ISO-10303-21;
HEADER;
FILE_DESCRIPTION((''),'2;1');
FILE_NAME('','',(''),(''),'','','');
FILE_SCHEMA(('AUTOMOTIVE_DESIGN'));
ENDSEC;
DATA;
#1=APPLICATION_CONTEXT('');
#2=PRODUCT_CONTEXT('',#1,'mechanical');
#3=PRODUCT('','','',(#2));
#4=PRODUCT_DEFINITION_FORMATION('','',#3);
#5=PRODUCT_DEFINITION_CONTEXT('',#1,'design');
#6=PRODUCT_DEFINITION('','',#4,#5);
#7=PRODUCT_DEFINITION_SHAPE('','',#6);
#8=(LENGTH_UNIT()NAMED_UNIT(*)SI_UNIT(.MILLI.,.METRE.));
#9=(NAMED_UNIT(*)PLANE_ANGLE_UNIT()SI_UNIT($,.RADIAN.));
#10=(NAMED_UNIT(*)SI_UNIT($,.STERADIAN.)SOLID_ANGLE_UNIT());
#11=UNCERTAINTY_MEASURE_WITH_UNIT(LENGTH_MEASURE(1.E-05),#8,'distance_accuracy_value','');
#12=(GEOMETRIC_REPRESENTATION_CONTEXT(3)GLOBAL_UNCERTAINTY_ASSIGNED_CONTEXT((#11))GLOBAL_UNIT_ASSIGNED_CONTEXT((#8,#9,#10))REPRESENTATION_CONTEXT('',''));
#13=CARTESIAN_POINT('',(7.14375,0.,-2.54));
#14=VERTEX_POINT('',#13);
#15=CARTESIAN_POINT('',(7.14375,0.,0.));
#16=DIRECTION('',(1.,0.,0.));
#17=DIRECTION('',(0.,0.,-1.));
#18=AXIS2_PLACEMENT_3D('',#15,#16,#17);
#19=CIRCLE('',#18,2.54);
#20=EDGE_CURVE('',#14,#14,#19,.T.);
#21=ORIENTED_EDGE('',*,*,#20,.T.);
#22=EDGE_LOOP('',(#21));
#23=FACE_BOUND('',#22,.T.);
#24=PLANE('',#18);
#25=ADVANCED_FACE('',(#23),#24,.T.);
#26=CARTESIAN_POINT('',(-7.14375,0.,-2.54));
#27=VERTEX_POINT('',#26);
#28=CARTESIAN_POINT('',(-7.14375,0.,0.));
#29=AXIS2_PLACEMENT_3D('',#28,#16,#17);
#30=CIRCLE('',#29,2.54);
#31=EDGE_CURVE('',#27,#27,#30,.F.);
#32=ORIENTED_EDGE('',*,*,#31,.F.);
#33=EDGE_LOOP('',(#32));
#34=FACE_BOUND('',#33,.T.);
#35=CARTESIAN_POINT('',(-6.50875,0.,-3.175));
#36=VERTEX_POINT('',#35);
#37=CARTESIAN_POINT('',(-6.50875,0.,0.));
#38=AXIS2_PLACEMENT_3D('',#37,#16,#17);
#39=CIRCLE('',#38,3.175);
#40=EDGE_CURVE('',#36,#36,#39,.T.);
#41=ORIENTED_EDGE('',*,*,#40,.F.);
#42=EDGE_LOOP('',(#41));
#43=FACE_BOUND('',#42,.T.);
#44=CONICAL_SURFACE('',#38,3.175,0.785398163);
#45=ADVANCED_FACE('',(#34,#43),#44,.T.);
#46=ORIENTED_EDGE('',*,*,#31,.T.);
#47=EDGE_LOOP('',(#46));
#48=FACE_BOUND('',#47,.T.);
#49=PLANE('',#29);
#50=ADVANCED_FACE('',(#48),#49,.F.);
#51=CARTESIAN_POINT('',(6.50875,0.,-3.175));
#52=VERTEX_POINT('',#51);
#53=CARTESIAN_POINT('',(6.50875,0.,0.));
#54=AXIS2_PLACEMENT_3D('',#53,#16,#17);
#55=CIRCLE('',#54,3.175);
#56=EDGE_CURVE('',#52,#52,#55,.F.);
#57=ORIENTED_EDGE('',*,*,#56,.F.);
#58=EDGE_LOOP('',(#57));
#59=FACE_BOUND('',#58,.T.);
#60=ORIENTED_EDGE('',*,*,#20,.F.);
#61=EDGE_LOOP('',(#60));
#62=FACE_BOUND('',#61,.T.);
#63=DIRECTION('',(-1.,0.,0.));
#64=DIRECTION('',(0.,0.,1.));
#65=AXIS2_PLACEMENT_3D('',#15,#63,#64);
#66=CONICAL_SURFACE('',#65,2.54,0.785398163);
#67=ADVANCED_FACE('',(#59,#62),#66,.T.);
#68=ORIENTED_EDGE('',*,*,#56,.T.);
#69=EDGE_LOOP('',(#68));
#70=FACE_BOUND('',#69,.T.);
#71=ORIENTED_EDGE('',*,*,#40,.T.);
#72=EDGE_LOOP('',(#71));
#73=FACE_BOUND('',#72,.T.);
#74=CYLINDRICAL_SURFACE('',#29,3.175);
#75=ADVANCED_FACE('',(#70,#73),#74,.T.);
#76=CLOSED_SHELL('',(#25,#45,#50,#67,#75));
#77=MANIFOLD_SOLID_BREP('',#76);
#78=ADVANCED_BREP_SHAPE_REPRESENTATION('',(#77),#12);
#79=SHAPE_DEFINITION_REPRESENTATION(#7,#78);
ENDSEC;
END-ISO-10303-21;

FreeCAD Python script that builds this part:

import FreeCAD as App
import Part
import Sketcher
Q = App.Units.Quantity


def edges_at(feature, points):
    """Names of the edges that pass closest to the given points."""
    edges = feature.Shape.Edges
    near = lambda p: min(range(len(edges)), key=lambda i: edges[i].distToShape(Part.Vertex(*p))[0])
    return sorted({f"Edge{near(p) + 1}" for p in points})

doc = App.newDocument("Part")
body = doc.addObject("PartDesign::Body", "Body")

sketch1 = doc.addObject("Sketcher::SketchObject", "Sketch")
body.addObject(sketch1)
sketch1.AttachmentSupport = (doc.YZ_Plane, [""])
sketch1.MapMode = "FlatFace"
sketch1.addGeometry(Part.Circle(App.Vector(0, 0, 0), App.Vector(0, 0, 1), 3.2), False)
sketch1.addConstraint(Sketcher.Constraint("Coincident", 0, 3, -1, 1))
sketch1.addConstraint(Sketcher.Constraint("Diameter", 0, Q("0.25 in")))
pad1 = doc.addObject("PartDesign::Pad", "Pad")
body.addObject(pad1)
pad1.Profile = sketch1
pad1.Type = "TwoLengths"
pad1.Length = Q("0.28125 in")
pad1.Length2 = Q("0.28125 in")
doc.recompute()

chamfer = doc.addObject("PartDesign::Chamfer", "Chamfer")
body.addObject(chamfer)
chamfer.Base = (pad1, edges_at(pad1, [(-7.144, 0, 3.175), (7.144, 0, 3.175)]))
chamfer.Size = Q("0.025 in")

doc.recompute()
